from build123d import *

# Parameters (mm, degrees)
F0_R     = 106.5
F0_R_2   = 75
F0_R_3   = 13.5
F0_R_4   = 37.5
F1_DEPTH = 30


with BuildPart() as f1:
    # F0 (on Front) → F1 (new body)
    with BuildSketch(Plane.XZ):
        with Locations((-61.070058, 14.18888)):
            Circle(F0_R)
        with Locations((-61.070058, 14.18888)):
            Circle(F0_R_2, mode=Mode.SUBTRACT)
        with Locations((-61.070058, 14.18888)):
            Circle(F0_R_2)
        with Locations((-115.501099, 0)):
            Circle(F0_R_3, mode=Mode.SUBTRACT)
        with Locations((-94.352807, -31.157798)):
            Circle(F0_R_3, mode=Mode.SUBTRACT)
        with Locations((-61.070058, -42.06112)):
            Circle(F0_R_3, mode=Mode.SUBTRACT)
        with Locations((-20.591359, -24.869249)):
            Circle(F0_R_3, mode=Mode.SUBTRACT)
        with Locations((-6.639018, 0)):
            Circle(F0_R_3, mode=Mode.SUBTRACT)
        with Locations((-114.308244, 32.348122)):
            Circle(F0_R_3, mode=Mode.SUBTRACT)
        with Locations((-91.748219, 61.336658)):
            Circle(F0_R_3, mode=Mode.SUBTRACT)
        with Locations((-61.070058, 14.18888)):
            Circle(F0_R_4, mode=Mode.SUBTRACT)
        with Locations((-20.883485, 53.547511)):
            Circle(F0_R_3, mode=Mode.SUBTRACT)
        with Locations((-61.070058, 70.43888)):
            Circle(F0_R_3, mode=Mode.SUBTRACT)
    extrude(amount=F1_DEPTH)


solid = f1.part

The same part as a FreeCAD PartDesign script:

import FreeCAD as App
import Part
import Sketcher
Q = App.Units.Quantity

doc = App.newDocument("Part")
params = doc.addObject("Spreadsheet::Sheet", "Params")
for row, (alias, value) in enumerate([
    ("sketch1_diameter", "213 mm"),
    ("sketch1_diameter2", "27 mm"),
    ("sketch1_diameter3", "75 mm"),
    ("pad1_length", "30 mm"),
], start=1):
    params.set(f"A{row}", alias)
    params.set(f"B{row}", "=" + value)
    params.setAlias(f"B{row}", alias)

body = doc.addObject("PartDesign::Body", "Body")

# Sketch on XZ plane
sketch1 = body.newObject("Sketcher::SketchObject", "Sketch")
sketch1.AttachmentSupport = (doc.getObject("XZ_Plane"), [""])
sketch1.MapMode = "FlatFace"
sketch1.addGeometry(Part.Circle(App.Vector(-61, 14, 0), App.Vector(0, 0, 1), 106), False)
sketch1.addGeometry(Part.Circle(App.Vector(-94, -31, 0), App.Vector(0, 0, 1), 14), False)
sketch1.addGeometry(Part.Circle(App.Vector(-116, 0, 0), App.Vector(0, 0, 1), 14), False)
sketch1.addGeometry(Part.Circle(App.Vector(-61, -42, 0), App.Vector(0, 0, 1), 14), False)
sketch1.addGeometry(Part.Circle(App.Vector(-21, -25, 0), App.Vector(0, 0, 1), 14), False)
sketch1.addGeometry(Part.Circle(App.Vector(-7, 0, 0), App.Vector(0, 0, 1), 14), False)
sketch1.addGeometry(Part.Circle(App.Vector(-114, 32, 0), App.Vector(0, 0, 1), 14), False)
sketch1.addGeometry(Part.Circle(App.Vector(-92, 61, 0), App.Vector(0, 0, 1), 14), False)
sketch1.addGeometry(Part.Circle(App.Vector(-61, 14, 0), App.Vector(0, 0, 1), 38), False)
sketch1.addGeometry(Part.Circle(App.Vector(-61, 70, 0), App.Vector(0, 0, 1), 14), False)
sketch1.addGeometry(Part.Circle(App.Vector(-21, 54, 0), App.Vector(0, 0, 1), 14), False)
sketch1.addConstraint(Sketcher.Constraint("Coincident", 8, 3, 0, 3))
sketch1.addConstraint(Sketcher.Constraint("Equal", 1, 2))
sketch1.addConstraint(Sketcher.Constraint("Equal", 2, 3))
sketch1.addConstraint(Sketcher.Constraint("Equal", 3, 4))
sketch1.addConstraint(Sketcher.Constraint("Equal", 4, 5))
sketch1.addConstraint(Sketcher.Constraint("Equal", 5, 6))
sketch1.addConstraint(Sketcher.Constraint("Equal", 6, 7))
sketch1.addConstraint(Sketcher.Constraint("Equal", 7, 9))
sketch1.addConstraint(Sketcher.Constraint("Equal", 9, 10))
sketch1.addConstraint(Sketcher.Constraint("PointOnObject", 2, 3, -1))
sketch1.addConstraint(Sketcher.Constraint("PointOnObject", 5, 3, -1))
sketch1.addConstraint(Sketcher.Constraint("Vertical", 0, 3, 3, 3))
sketch1.addConstraint(Sketcher.Constraint("Vertical", 8, 3, 9, 3))
sketch1.addConstraint(Sketcher.Constraint("Diameter", 0, Q("213 mm")))
sketch1.addConstraint(Sketcher.Constraint("Diameter", 1, Q("27 mm")))
sketch1.addConstraint(Sketcher.Constraint("Diameter", 8, Q("75 mm")))
sketch1.addConstraint(Sketcher.Constraint("DistanceY", 3, 3, 0, 3, Q("56.25 mm")))
sketch1.addConstraint(Sketcher.Constraint("DistanceY", 0, 3, 9, 3, Q("56.25 mm")))
sketch1.addConstraint(Sketcher.Constraint("DistanceX", 2, 3, -1, 1, Q("115.501099 mm")))
sketch1.addConstraint(Sketcher.Constraint("DistanceX", 3, 3, 4, 3, Q("40.478699 mm")))
sketch1.addConstraint(Sketcher.Constraint("DistanceX", 7, 3, 5, 3, Q("85.109201 mm")))
sketch1.addConstraint(Sketcher.Constraint("DistanceX", 0, 3, -1, 1, Q("61.070058 mm")))
sketch1.addConstraint(Sketcher.Constraint("DistanceY", -1, 1, 0, 3, Q("14.18888 mm")))
sketch1.addConstraint(Sketcher.Constraint("DistanceY", 4, 3, -1, 1, Q("24.869249 mm")))
sketch1.addConstraint(Sketcher.Constraint("DistanceY", -1, 1, 6, 3, Q("32.348122 mm")))
sketch1.addConstraint(Sketcher.Constraint("DistanceX", 7, 3, -1, 1, Q("91.748219 mm")))
sketch1.addConstraint(Sketcher.Constraint("DistanceY", -1, 1, 10, 3, Q("53.547511 mm")))
sketch1.addConstraint(Sketcher.Constraint("DistanceX", 1, 3, 0, 3, Q("33.282749 mm")))
sketch1.addConstraint(Sketcher.Constraint("DistanceY", 1, 3, 4, 3, Q("6.288549 mm")))
sketch1.addConstraint(Sketcher.Constraint("DistanceY", 0, 3, 7, 3, Q("47.147778 mm")))
sketch1.addConstraint(Sketcher.Constraint("DistanceX", 6, 3, -1, 1, Q("114.308244 mm")))
sketch1.addConstraint(Sketcher.Constraint("DistanceX", 10, 3, -1, 1, Q("20.883485 mm")))
sketch1.setExpression("Constraints[13]", "Params.sketch1_diameter")
sketch1.setExpression("Constraints[14]", "Params.sketch1_diameter2")
sketch1.setExpression("Constraints[15]", "Params.sketch1_diameter3")
pad1 = body.newObject("PartDesign::Pad", "Pad")
pad1.Profile = sketch1
pad1.setExpression("Length", "Params.pad1_length")

doc.recompute()
